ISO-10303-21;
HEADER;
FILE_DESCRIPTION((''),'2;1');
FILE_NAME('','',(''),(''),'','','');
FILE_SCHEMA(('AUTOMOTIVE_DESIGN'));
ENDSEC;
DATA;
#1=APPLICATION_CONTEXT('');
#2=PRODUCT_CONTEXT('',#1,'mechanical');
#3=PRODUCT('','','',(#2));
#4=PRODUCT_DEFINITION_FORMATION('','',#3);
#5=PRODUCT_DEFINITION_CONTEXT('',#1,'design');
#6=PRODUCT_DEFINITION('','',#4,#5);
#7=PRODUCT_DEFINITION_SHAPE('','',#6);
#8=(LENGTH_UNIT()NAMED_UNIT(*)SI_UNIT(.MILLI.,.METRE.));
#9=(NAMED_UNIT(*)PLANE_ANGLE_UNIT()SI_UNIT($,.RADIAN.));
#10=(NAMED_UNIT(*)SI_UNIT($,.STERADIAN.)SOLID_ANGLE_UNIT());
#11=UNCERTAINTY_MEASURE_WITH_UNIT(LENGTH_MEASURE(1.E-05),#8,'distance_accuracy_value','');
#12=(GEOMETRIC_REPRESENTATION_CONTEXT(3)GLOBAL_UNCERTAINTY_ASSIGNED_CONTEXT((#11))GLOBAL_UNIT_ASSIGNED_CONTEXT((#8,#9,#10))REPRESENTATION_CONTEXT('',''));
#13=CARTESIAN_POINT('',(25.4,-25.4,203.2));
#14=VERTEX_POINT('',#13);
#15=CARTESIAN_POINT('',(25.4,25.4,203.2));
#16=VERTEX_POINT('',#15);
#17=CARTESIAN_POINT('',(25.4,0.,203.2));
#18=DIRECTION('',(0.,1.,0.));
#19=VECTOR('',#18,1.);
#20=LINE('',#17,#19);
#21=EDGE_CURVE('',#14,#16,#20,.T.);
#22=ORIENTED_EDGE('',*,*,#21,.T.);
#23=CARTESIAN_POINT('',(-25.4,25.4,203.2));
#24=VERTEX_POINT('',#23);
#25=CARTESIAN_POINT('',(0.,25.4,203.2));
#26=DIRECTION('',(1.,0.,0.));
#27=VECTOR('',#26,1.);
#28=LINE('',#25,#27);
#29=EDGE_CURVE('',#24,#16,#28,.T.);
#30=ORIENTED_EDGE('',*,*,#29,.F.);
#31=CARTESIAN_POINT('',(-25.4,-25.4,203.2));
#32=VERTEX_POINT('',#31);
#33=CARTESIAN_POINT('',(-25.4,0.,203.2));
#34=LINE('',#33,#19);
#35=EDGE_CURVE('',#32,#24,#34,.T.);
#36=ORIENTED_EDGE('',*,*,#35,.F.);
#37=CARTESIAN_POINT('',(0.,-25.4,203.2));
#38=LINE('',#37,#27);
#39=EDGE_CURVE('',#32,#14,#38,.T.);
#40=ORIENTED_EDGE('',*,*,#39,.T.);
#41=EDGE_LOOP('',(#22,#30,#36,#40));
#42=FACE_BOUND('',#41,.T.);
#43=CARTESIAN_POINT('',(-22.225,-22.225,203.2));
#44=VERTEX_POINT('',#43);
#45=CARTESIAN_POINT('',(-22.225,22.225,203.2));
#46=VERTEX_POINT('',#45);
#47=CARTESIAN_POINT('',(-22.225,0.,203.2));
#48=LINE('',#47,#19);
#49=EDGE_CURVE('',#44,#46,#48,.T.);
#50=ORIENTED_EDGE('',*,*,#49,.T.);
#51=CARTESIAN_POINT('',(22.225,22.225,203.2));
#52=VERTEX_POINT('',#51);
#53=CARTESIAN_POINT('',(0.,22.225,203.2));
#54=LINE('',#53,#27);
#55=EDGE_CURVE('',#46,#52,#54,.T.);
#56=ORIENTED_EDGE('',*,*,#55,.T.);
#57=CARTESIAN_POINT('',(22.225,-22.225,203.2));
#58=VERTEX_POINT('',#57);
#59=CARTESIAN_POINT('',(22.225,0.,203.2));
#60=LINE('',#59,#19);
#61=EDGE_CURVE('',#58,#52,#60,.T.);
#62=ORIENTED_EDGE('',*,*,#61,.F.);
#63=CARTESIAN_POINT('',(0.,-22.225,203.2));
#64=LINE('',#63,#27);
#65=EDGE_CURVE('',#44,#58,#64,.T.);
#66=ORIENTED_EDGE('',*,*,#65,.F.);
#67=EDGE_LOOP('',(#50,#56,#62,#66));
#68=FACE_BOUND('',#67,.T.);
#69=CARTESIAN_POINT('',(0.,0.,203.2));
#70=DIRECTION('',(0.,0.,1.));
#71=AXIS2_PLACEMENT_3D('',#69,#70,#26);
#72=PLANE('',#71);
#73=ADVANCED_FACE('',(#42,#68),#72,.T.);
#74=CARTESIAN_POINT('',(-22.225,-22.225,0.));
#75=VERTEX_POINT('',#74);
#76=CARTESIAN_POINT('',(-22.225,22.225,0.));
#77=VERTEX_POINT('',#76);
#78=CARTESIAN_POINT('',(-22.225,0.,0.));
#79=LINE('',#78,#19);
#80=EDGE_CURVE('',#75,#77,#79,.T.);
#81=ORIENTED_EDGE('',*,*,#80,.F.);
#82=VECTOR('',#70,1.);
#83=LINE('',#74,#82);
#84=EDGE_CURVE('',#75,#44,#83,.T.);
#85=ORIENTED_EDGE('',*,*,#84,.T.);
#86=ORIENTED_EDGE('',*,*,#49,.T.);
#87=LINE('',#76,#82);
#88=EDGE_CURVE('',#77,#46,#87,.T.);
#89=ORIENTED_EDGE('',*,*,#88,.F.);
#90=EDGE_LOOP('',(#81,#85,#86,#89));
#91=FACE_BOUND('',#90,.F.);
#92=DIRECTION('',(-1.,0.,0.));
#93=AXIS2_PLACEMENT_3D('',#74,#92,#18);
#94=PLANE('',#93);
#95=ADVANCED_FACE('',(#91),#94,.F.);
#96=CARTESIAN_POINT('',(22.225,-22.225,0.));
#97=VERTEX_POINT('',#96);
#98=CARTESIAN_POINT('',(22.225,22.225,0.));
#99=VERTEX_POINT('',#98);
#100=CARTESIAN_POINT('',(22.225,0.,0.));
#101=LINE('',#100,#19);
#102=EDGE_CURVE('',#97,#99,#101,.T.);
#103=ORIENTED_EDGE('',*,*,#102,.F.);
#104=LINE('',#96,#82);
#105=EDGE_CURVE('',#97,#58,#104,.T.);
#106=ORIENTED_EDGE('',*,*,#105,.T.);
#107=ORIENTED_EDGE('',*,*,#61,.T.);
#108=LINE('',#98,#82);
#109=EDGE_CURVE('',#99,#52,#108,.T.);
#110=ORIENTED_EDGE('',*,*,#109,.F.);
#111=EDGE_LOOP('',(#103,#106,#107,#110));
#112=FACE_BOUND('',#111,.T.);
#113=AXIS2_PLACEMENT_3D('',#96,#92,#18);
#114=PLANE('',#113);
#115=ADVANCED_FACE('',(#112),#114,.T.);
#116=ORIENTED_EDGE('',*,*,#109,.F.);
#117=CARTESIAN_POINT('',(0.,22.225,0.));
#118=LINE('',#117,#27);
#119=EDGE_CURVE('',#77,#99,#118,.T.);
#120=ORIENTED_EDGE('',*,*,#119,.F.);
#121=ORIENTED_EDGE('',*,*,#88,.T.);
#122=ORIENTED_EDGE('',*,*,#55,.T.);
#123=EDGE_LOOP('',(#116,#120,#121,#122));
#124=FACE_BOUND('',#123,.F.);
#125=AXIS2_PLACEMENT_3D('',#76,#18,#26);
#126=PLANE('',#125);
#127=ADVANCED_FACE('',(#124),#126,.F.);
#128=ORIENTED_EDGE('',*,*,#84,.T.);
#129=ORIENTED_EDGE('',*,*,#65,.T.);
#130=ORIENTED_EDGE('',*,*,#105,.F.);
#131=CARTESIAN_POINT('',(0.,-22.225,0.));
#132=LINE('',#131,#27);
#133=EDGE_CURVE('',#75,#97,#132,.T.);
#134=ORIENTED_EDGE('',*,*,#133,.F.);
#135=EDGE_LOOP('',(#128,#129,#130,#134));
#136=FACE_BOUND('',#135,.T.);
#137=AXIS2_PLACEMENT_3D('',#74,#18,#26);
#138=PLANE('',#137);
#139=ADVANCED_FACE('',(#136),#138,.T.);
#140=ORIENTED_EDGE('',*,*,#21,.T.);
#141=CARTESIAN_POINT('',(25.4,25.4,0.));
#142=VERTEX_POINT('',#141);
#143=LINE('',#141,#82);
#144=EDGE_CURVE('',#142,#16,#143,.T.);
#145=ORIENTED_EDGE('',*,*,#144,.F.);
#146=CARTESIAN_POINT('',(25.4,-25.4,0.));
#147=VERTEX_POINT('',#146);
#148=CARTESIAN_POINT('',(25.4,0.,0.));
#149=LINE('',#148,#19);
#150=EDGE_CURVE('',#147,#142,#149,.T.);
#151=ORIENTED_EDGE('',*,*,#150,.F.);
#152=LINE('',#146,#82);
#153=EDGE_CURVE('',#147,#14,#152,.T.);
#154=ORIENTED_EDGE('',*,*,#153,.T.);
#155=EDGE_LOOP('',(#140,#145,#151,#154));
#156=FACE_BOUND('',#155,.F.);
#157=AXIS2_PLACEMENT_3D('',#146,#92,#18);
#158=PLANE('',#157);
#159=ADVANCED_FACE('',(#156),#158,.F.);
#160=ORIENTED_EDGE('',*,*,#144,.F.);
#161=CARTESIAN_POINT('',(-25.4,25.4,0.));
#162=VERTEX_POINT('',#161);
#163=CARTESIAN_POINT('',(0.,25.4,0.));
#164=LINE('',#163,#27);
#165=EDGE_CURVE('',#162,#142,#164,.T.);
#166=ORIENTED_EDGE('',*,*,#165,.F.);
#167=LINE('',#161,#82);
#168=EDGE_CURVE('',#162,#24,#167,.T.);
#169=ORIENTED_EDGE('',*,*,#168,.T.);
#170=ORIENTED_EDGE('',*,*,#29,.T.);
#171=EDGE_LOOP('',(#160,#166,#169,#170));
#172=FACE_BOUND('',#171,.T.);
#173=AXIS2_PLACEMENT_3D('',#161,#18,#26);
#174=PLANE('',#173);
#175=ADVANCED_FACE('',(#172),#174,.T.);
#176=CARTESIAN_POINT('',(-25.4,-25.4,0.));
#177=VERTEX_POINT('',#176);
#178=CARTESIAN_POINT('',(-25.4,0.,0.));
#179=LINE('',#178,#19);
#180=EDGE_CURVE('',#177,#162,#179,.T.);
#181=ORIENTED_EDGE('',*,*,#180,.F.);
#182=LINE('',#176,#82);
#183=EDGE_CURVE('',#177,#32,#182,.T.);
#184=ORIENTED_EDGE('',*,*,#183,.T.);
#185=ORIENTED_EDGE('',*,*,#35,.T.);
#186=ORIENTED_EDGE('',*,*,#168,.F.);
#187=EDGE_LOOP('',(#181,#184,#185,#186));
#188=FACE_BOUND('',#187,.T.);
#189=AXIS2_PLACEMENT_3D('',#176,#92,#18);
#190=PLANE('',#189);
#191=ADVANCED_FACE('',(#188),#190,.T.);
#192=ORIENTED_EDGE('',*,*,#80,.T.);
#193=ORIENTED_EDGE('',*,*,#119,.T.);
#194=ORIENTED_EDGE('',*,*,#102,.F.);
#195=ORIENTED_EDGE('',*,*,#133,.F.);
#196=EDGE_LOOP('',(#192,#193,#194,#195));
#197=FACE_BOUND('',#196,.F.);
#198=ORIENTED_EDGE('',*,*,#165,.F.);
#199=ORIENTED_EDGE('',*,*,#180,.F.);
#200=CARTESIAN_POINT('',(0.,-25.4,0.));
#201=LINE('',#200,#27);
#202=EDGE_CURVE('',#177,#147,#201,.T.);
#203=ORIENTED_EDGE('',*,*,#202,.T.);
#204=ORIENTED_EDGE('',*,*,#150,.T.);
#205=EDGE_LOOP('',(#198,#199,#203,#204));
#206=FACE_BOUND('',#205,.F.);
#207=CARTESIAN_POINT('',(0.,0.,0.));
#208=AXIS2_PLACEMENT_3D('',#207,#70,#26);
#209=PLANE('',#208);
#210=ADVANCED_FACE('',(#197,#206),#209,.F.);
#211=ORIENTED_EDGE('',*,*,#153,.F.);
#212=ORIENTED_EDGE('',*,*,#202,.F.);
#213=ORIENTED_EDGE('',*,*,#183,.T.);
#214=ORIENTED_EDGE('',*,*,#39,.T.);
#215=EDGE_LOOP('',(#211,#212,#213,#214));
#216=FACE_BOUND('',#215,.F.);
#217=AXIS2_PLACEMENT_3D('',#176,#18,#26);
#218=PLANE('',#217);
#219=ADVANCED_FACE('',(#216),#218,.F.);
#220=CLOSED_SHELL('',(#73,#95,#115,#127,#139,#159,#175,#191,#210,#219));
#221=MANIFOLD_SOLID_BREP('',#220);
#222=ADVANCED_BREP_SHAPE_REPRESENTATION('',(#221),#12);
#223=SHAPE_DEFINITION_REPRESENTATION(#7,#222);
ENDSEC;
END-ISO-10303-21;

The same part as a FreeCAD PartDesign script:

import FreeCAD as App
import Part
import Sketcher

V = App.Vector
Q = App.Units.Quantity

doc = App.newDocument("Part")
body = doc.addObject("PartDesign::Body", "Body")

sketch1 = doc.addObject("Sketcher::SketchObject", "Sketch")
body.addObject(sketch1)
sketch1.AttachmentSupport = (doc.XY_Plane, [""])
sketch1.MapMode = "FlatFace"
sketch1.addGeometry([
    Part.LineSegment(V(-25.4, 25.4, 0), V(-25.4, -25.4, 0)),
    Part.LineSegment(V(-25.4, -25.4, 0), V(25.4, -25.4, 0)),
    Part.LineSegment(V(25.4, -25.4, 0), V(25.4, 25.4, 0)),
    Part.LineSegment(V(25.4, 25.4, 0), V(-25.4, 25.4, 0)),
], False)
sketch1.addConstraint([
    Sketcher.Constraint("Coincident", 0, 2, 1, 1),
    Sketcher.Constraint("Coincident", 1, 2, 2, 1),
    Sketcher.Constraint("Coincident", 2, 2, 3, 1),
    Sketcher.Constraint("Coincident", 3, 2, 0, 1),
    Sketcher.Constraint("Vertical", 0),
    Sketcher.Constraint("Horizontal", 1),
    Sketcher.Constraint("Vertical", 2),
    Sketcher.Constraint("Horizontal", 3),
    Sketcher.Constraint("Symmetric", 0, 2, 2, 2, -1, 1),
    Sketcher.Constraint("Equal", 3, 0),
    Sketcher.Constraint("DistanceX", 1, 1, 1, 2, Q("2 in")),
])
pad1 = doc.addObject("PartDesign::Pad", "Pad")
body.addObject(pad1)
pad1.Profile = sketch1
pad1.Length = Q("8 in")

sketch2 = doc.addObject("Sketcher::SketchObject", "Sketch001")
body.addObject(sketch2)
sketch2.AttachmentSupport = (doc.XY_Plane, [""])
sketch2.MapMode = "FlatFace"
sketch2.addGeometry([
    Part.LineSegment(V(-22.225, 22.225, 0), V(-22.225, -22.225, 0)),
    Part.LineSegment(V(-22.225, -22.225, 0), V(22.225, -22.225, 0)),
    Part.LineSegment(V(22.225, -22.225, 0), V(22.225, 22.225, 0)),
    Part.LineSegment(V(22.225, 22.225, 0), V(-22.225, 22.225, 0)),
], False)
sketch2.addConstraint([
    Sketcher.Constraint("Coincident", 0, 2, 1, 1),
    Sketcher.Constraint("Coincident", 1, 2, 2, 1),
    Sketcher.Constraint("Coincident", 2, 2, 3, 1),
    Sketcher.Constraint("Coincident", 3, 2, 0, 1),
    Sketcher.Constraint("Vertical", 0),
    Sketcher.Constraint("Horizontal", 1),
    Sketcher.Constraint("Vertical", 2),
    Sketcher.Constraint("Horizontal", 3),
    Sketcher.Constraint("Symmetric", 0, 2, 2, 2, -1, 1),
    Sketcher.Constraint("Equal", 3, 0),
    Sketcher.Constraint("DistanceX", 1, 1, 1, 2, Q("1.75 in")),
])
pocket1 = doc.addObject("PartDesign::Pocket", "Pocket")
body.addObject(pocket1)
pocket1.Profile = sketch2
pocket1.Length = Q("8 in")
pocket1.Reversed = True

doc.recompute()
